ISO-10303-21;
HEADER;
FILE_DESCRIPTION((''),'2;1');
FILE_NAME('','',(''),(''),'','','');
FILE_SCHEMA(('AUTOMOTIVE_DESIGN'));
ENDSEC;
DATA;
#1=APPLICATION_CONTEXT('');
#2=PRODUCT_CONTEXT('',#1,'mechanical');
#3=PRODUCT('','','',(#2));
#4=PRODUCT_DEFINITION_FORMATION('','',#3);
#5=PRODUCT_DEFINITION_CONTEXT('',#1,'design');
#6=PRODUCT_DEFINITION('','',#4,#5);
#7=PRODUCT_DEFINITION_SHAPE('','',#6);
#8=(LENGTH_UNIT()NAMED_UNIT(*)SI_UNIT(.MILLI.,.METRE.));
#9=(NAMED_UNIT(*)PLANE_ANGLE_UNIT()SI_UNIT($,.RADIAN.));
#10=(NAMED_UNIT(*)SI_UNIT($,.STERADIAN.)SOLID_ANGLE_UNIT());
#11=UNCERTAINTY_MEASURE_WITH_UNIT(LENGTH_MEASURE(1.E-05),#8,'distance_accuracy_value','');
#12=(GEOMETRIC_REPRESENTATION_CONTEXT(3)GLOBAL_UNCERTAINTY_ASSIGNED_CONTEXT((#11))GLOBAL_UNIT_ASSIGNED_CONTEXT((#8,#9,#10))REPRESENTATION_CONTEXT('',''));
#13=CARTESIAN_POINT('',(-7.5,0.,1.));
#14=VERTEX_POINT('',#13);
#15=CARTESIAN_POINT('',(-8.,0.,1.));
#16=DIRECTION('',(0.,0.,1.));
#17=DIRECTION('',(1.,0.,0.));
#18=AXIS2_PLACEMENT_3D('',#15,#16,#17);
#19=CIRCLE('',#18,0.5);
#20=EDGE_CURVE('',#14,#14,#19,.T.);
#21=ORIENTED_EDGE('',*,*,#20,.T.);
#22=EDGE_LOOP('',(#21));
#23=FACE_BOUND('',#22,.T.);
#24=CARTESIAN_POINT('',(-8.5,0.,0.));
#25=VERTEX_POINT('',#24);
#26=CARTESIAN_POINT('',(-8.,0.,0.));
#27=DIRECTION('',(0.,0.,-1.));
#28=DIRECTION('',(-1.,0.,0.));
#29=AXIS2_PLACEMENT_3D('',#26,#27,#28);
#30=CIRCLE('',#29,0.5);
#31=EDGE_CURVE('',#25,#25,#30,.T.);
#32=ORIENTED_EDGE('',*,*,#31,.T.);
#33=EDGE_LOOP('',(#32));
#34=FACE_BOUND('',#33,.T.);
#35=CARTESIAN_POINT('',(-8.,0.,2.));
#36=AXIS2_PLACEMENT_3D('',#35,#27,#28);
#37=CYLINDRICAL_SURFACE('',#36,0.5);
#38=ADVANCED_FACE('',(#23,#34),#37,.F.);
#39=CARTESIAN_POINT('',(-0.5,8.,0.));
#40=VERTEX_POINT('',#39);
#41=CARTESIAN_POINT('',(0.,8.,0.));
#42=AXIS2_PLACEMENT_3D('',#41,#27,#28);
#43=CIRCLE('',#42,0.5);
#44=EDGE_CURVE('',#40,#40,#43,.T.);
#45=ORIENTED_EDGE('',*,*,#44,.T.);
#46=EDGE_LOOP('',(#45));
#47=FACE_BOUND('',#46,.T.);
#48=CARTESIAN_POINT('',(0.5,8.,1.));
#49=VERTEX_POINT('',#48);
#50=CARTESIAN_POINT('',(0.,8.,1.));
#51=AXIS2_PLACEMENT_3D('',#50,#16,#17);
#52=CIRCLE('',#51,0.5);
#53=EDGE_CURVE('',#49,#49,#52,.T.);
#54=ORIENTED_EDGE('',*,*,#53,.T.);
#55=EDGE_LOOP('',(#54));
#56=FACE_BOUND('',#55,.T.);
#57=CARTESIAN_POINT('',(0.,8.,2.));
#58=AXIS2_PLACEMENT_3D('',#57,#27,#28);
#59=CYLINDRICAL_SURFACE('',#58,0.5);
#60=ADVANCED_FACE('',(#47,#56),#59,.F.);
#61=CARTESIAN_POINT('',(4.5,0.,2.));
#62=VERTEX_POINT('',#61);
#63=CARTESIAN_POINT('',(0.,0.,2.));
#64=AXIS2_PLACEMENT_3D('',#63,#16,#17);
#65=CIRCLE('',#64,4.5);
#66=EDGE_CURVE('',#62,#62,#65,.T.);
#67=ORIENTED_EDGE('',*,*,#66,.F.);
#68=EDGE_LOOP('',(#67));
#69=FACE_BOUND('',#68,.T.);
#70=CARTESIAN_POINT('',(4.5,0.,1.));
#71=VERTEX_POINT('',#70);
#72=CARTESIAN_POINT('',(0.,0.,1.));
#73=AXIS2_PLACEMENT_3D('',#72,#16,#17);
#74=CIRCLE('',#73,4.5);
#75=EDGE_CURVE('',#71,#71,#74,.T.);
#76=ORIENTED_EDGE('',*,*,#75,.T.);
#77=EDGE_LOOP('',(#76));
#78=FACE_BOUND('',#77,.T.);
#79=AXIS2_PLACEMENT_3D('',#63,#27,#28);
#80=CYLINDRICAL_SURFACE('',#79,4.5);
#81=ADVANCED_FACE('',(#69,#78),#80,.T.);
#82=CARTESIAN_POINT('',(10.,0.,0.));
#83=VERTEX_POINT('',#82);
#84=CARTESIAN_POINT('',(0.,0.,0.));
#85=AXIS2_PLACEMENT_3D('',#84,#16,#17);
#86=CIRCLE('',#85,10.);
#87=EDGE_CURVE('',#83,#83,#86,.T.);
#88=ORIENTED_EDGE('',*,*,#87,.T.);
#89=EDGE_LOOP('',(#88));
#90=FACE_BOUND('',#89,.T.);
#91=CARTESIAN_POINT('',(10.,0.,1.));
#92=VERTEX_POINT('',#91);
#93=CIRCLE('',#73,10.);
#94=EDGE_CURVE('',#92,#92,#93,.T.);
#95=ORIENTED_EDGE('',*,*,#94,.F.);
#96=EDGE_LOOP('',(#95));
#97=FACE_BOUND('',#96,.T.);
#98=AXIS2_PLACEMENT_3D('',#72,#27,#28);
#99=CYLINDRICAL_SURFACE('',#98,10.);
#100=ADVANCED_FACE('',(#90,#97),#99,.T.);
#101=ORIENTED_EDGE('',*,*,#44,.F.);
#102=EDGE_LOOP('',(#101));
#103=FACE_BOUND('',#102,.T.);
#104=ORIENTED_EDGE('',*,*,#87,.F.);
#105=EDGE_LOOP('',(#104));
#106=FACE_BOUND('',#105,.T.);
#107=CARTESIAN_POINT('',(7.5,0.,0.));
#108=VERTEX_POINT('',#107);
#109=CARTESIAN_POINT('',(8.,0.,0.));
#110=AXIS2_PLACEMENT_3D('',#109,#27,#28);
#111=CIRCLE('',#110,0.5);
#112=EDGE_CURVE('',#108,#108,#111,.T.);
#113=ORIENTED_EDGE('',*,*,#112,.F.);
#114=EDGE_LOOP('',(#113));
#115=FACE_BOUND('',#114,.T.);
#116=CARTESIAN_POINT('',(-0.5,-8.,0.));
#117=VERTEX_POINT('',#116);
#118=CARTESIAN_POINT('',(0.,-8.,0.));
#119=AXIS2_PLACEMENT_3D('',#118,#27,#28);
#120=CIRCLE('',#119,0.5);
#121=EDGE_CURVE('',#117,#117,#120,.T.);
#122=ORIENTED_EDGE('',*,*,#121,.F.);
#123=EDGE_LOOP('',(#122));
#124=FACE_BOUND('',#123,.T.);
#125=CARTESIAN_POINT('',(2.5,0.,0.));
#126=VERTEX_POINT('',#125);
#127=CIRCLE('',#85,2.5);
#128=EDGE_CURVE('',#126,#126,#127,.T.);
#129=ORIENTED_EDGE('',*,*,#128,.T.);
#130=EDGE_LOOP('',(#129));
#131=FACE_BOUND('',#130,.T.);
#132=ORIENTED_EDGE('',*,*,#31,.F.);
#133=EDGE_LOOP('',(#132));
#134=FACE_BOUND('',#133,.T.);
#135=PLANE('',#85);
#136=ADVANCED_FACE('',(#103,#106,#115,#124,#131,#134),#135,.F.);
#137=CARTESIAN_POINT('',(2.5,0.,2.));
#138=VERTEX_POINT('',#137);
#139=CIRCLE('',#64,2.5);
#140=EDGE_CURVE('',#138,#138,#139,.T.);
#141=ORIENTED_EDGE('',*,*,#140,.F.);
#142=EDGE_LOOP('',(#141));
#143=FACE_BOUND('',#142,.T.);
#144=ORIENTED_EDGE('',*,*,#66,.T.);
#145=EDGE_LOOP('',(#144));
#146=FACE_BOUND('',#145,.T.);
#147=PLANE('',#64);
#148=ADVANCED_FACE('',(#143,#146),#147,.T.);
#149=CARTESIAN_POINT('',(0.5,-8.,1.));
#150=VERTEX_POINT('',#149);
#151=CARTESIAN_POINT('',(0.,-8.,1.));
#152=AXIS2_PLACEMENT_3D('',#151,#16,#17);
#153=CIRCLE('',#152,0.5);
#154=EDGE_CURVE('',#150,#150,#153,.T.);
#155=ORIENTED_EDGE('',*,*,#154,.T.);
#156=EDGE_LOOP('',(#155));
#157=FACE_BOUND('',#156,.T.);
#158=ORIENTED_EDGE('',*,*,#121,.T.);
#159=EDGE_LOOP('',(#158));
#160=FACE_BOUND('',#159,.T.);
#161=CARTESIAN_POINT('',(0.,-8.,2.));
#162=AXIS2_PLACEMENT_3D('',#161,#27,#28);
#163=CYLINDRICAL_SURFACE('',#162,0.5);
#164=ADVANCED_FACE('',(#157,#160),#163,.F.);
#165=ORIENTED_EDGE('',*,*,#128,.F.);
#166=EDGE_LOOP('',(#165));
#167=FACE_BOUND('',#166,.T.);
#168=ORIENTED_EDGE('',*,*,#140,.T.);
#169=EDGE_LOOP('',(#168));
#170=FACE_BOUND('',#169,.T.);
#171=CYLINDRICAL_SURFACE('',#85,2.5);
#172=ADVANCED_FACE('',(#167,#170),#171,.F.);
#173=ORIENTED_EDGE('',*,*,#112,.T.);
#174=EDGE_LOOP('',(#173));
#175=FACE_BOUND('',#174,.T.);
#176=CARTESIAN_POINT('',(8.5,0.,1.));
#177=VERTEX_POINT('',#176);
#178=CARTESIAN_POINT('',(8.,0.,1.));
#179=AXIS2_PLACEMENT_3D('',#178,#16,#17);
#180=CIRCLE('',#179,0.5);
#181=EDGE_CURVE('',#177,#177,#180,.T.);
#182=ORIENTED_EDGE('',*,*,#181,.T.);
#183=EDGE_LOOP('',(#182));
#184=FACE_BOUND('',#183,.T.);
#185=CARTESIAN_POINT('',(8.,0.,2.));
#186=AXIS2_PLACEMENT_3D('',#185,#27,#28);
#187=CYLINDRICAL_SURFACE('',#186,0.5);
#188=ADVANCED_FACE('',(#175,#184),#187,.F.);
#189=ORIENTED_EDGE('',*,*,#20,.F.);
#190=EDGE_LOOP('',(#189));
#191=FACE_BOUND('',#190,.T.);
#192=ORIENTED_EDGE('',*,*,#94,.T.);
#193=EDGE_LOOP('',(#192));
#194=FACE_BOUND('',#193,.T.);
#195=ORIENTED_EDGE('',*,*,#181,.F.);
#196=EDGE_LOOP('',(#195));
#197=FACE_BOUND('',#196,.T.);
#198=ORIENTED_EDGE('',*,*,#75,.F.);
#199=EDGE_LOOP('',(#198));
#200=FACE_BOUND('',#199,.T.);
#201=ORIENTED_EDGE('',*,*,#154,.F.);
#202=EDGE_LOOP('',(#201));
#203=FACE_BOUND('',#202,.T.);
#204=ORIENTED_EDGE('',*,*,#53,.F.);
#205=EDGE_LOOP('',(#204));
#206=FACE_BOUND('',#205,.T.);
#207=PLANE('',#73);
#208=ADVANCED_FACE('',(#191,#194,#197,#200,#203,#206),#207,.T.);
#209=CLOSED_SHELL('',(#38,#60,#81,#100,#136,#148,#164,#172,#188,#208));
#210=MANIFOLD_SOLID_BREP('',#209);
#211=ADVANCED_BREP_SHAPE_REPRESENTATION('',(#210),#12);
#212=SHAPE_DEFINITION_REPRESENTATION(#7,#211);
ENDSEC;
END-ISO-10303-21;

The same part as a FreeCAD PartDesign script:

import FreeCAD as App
import Part
import Sketcher
Q = App.Units.Quantity

doc = App.newDocument("Part")
body = doc.addObject("PartDesign::Body", "Body")

# Sketch on XY plane
sketch1 = doc.addObject("Sketcher::SketchObject", "Sketch")
body.addObject(sketch1)
sketch1.AttachmentSupport = (doc.XY_Plane, [""])
sketch1.MapMode = "FlatFace"
sketch1.addGeometry(Part.Circle(App.Vector(0, 0, 0), App.Vector(0, 0, 1), 10), False)
sketch1.addConstraint([
    Sketcher.Constraint("Coincident", 0, 3, -1, 1),
    Sketcher.Constraint("Diameter", 0, Q("20 mm")),
])
pad1 = doc.addObject("PartDesign::Pad", "Pad")
body.addObject(pad1)
pad1.Profile = sketch1
pad1.Length = 1

# Sketch on XY plane
sketch2 = doc.addObject("Sketcher::SketchObject", "Sketch001")
body.addObject(sketch2)
sketch2.AttachmentSupport = (doc.XY_Plane, [""])
sketch2.MapMode = "FlatFace"
sketch2.AttachmentOffset = App.Placement(App.Vector(0, 0, 1), App.Rotation())
sketch2.addGeometry(Part.Circle(App.Vector(0, 0, 0), App.Vector(0, 0, 1), 4.5), False)
sketch2.addConstraint([
    Sketcher.Constraint("Coincident", 0, 3, -1, 1),
    Sketcher.Constraint("Diameter", 0, Q("9 mm")),
])
pad2 = doc.addObject("PartDesign::Pad", "Pad001")
body.addObject(pad2)
pad2.Profile = sketch2
pad2.Length = 1

# Sketch on XY plane
sketch3 = doc.addObject("Sketcher::SketchObject", "Sketch002")
body.addObject(sketch3)
sketch3.AttachmentSupport = (doc.XY_Plane, [""])
sketch3.MapMode = "FlatFace"
sketch3.AttachmentOffset = App.Placement(App.Vector(0, 0, 2), App.Rotation())
sketch3.addGeometry(Part.Circle(App.Vector(0, 0, 0), App.Vector(0, 0, 1), 2.5), False)
sketch3.addConstraint([
    Sketcher.Constraint("Coincident", 0, 3, -1, 1),
    Sketcher.Constraint("Diameter", 0, Q("5 mm")),
])
pocket1 = doc.addObject("PartDesign::Pocket", "Pocket")
body.addObject(pocket1)
pocket1.Profile = sketch3
pocket1.Type = "ThroughAll"

# Sketch on XY plane
sketch4 = doc.addObject("Sketcher::SketchObject", "Sketch003")
body.addObject(sketch4)
sketch4.AttachmentSupport = (doc.XY_Plane, [""])
sketch4.MapMode = "FlatFace"
sketch4.addGeometry([
    Part.Circle(App.Vector(0, 8, 0), App.Vector(0, 0, 1), 0.5),
    Part.Circle(App.Vector(-8, 0, 0), App.Vector(0, 0, 1), 0.5),
    Part.Circle(App.Vector(0, -8, 0), App.Vector(0, 0, 1), 0.5),
    Part.Circle(App.Vector(8, 0, 0), App.Vector(0, 0, 1), 0.5),
], False)
sketch4.addConstraint([
    Sketcher.Constraint("Equal", 0, 1),
    Sketcher.Constraint("Equal", 1, 2),
    Sketcher.Constraint("Equal", 2, 3),
    Sketcher.Constraint("Symmetric", 0, 3, 2, 3, -1, 1),
    Sketcher.Constraint("Symmetric", 1, 3, 3, 3, -1, 1),
    Sketcher.Constraint("PointOnObject", 0, 3, -2),
    Sketcher.Constraint("PointOnObject", 1, 3, -1),
    Sketcher.Constraint("Diameter", 0, Q("1 mm")),
    Sketcher.Constraint("DistanceY", -1, 1, 0, 3, Q("8 mm")),
    Sketcher.Constraint("DistanceX", 1, 3, -1, 1, Q("8 mm")),
])
pocket2 = doc.addObject("PartDesign::Pocket", "Pocket001")
body.addObject(pocket2)
pocket2.Profile = sketch4
pocket2.Type = "ThroughAll"
pocket2.Reversed = True

doc.recompute()
